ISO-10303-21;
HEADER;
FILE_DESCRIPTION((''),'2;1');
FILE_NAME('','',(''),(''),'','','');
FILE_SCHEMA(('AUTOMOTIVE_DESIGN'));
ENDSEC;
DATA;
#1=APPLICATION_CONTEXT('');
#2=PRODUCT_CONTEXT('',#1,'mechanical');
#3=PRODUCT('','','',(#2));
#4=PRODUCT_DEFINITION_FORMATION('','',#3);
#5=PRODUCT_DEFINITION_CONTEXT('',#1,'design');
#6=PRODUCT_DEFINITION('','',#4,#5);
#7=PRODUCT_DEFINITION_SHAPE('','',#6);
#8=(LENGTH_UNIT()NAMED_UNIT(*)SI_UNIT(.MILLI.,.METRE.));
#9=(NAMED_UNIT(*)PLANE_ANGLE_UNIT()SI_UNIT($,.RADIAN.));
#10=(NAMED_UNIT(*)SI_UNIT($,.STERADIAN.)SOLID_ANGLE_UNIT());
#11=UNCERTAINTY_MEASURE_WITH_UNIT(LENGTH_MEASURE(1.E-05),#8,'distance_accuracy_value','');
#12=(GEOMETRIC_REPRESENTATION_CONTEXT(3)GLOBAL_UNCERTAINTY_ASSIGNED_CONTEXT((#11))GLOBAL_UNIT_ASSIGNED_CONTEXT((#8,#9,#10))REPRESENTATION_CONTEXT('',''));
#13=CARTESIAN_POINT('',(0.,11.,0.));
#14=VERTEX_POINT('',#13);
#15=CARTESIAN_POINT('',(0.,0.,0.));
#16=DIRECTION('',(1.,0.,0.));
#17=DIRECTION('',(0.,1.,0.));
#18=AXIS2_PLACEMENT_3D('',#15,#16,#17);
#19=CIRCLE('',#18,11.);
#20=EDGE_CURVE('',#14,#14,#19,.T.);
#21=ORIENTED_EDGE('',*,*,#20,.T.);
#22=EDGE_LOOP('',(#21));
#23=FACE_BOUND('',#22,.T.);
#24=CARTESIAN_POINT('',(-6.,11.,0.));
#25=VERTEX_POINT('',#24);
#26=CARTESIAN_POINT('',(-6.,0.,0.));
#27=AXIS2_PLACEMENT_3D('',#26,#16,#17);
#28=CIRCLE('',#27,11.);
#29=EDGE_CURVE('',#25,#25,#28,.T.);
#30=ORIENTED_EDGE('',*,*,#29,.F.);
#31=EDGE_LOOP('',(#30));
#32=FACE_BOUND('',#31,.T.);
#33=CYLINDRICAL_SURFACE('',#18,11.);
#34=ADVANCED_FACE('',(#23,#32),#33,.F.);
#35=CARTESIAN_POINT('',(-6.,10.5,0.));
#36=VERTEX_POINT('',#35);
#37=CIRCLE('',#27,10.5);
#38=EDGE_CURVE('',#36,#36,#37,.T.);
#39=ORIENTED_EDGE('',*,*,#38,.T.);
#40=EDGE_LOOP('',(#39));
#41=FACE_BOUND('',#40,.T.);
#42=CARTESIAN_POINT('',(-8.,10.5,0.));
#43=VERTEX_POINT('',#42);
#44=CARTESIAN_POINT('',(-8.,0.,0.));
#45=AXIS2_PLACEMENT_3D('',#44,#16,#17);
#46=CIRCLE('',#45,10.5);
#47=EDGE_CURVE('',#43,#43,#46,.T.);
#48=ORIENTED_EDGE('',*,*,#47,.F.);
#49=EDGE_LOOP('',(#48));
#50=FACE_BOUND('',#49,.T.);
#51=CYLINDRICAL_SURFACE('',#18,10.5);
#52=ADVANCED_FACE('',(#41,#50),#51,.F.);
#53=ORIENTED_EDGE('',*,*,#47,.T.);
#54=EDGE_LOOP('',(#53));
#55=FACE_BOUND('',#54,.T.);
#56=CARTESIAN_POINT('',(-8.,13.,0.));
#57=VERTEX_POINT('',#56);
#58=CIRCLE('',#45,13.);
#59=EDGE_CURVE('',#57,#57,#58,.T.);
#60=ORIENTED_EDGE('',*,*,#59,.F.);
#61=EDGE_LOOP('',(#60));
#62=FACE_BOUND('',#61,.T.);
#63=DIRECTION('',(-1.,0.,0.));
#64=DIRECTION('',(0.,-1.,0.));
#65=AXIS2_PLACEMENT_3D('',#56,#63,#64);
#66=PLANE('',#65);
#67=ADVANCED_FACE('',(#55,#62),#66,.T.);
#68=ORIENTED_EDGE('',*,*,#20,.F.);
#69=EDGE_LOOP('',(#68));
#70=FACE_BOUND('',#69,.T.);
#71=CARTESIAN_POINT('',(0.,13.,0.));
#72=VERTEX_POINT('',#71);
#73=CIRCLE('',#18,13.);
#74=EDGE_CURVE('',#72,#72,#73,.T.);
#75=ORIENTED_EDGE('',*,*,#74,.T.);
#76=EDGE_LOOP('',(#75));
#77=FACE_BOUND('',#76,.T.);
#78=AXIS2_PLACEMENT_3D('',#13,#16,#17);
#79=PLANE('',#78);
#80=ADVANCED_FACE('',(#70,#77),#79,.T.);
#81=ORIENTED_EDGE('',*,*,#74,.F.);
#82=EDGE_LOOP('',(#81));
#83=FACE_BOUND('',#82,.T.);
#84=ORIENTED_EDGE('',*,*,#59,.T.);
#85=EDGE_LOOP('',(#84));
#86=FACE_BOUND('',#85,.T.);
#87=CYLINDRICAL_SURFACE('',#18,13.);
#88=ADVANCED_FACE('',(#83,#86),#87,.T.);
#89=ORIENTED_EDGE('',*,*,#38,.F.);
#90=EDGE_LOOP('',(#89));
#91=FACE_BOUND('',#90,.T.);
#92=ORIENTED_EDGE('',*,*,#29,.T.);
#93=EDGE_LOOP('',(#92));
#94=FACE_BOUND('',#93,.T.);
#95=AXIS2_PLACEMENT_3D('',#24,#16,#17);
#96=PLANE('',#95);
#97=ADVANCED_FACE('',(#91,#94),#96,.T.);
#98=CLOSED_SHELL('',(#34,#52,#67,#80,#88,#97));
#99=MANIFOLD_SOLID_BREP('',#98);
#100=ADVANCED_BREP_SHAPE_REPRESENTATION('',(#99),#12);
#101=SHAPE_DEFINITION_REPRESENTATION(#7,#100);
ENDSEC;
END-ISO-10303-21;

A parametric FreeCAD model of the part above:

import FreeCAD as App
import Part
import Sketcher
from FreeCAD import Vector
Q = App.Units.Quantity

doc = App.newDocument("Part")
params = doc.addObject("Spreadsheet::Sheet", "Params")
for row, (alias, value) in enumerate([
    ("sketch1_width", "8 mm"),
    ("sketch1_width2", "2 mm"),
    ("sketch1_height", "2.5 mm"),
    ("revolution_angle", "360 deg"),
], start=1):
    params.set(f"A{row}", alias)
    params.set(f"B{row}", "=" + value)
    params.setAlias(f"B{row}", alias)

body = doc.addObject("PartDesign::Body", "Body")

sketch1 = doc.addObject("Sketcher::SketchObject", "Sketch")
body.addObject(sketch1)
sketch1.AttachmentSupport = (doc.XY_Plane, [""])
sketch1.MapMode = "FlatFace"
sketch1.addGeometry([
    Part.LineSegment(Vector(0, 11, 0), Vector(0, 13, 0)),
    Part.LineSegment(Vector(0, 13, 0), Vector(-8, 13, 0)),
    Part.LineSegment(Vector(-8, 13, 0), Vector(-8, 10.5, 0)),
    Part.LineSegment(Vector(-8, 10.5, 0), Vector(-6, 10.5, 0)),
    Part.LineSegment(Vector(-6, 10.5, 0), Vector(-6, 11, 0)),
    Part.LineSegment(Vector(-6, 11, 0), Vector(0, 11, 0)),
], False)
sketch1.addConstraint([
    Sketcher.Constraint("Coincident", 0, 2, 1, 1),
    Sketcher.Constraint("Coincident", 1, 2, 2, 1),
    Sketcher.Constraint("Coincident", 2, 2, 3, 1),
    Sketcher.Constraint("Coincident", 3, 2, 4, 1),
    Sketcher.Constraint("Coincident", 4, 2, 5, 1),
    Sketcher.Constraint("Coincident", 5, 2, 0, 1),
    Sketcher.Constraint("Vertical", 0),
    Sketcher.Constraint("Horizontal", 1),
    Sketcher.Constraint("Vertical", 2),
    Sketcher.Constraint("Horizontal", 3),
    Sketcher.Constraint("Vertical", 4),
    Sketcher.Constraint("Horizontal", 5),
    Sketcher.Constraint("PointOnObject", 0, 2, -2),
    Sketcher.Constraint("Equal", 3, 0),
    Sketcher.Constraint("DistanceX", 1, 2, 1, 1, Q("8 mm")),
    Sketcher.Constraint("DistanceX", 3, 1, 3, 2, Q("2 mm")),
    Sketcher.Constraint("DistanceY", 2, 2, 2, 1, Q("2.5 mm")),
    Sketcher.Constraint("DistanceY", -1, 1, 0, 2, Q("13 mm")),
])
sketch1.setExpression("Constraints[14]", "Params.sketch1_width")
sketch1.setExpression("Constraints[15]", "Params.sketch1_width2")
sketch1.setExpression("Constraints[16]", "Params.sketch1_height")
revolution = doc.addObject("PartDesign::Revolution", "Revolution")
body.addObject(revolution)
revolution.Profile = sketch1
revolution.ReferenceAxis = (sketch1, ["H_Axis"])
revolution.setExpression("Angle", "Params.revolution_angle")

doc.recompute()
